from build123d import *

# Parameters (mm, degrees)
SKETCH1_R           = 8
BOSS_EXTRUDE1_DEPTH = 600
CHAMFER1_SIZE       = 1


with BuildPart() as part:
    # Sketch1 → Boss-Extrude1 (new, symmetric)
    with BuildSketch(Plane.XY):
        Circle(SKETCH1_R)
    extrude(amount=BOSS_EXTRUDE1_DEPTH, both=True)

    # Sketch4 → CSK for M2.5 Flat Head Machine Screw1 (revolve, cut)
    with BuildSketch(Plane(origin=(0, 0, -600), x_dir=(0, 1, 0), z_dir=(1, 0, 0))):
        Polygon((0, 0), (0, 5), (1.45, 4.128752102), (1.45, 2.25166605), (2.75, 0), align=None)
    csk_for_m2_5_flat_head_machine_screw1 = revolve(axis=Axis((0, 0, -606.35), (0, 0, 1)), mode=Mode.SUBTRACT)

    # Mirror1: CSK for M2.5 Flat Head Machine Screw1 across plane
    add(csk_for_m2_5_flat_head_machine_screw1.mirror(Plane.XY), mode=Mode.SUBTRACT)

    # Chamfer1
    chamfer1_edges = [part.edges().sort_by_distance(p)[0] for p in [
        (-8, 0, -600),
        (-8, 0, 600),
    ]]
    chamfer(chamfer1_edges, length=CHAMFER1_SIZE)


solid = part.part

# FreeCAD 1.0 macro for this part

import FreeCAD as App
import Part
import Sketcher

V = App.Vector
Q = App.Units.Quantity


def edges_at(feature, points):
    """Names of the edges that pass closest to the given points."""
    edges = feature.Shape.Edges
    near = lambda p: min(range(len(edges)), key=lambda i: edges[i].distToShape(Part.Vertex(*p))[0])
    return sorted({f"Edge{near(p) + 1}" for p in points})

doc = App.newDocument("Part")
body = doc.addObject("PartDesign::Body", "Body")

# Sketch on XY plane
sketch1 = body.newObject("Sketcher::SketchObject", "Sketch")
sketch1.AttachmentSupport = (doc.getObject("XY_Plane"), [""])
sketch1.MapMode = "FlatFace"
sketch1.addGeometry(Part.Circle(V(0, 0, 0), V(0, 0, 1), 8), False)
sketch1.addConstraint([
    Sketcher.Constraint("Coincident", 0, 3, -1, 1),
    Sketcher.Constraint("Diameter", 0, Q("16 mm")),
])
pad1 = body.newObject("PartDesign::Pad", "Pad")
pad1.Profile = sketch1
pad1.Length = 1200
pad1.Midplane = True

# Sketch on YZ plane
sketch2 = body.newObject("Sketcher::SketchObject", "Sketch001")
sketch2.AttachmentSupport = (doc.getObject("YZ_Plane"), [""])
sketch2.MapMode = "FlatFace"
sketch2.addGeometry([
    Part.LineSegment(V(0, -595, 0), V(0, -600, 0)),  # 0
    Part.LineSegment(V(0, -600, 0), V(2.8, -600, 0)),  # 1
    Part.LineSegment(V(2.8, -600, 0), V(1.4, -597.7, 0)),  # 2
    Part.LineSegment(V(1.4, -597.7, 0), V(1.4, -595.9, 0)),  # 3
    Part.LineSegment(V(1.4, -595.9, 0), V(0, -595, 0)),  # 4
], False)
sketch2.addConstraint([
    Sketcher.Constraint("Coincident", 0, 2, 1, 1),
    Sketcher.Constraint("Coincident", 1, 2, 2, 1),
    Sketcher.Constraint("Coincident", 2, 2, 3, 1),
    Sketcher.Constraint("Coincident", 3, 2, 4, 1),
    Sketcher.Constraint("Coincident", 4, 2, 0, 1),
    Sketcher.Constraint("Vertical", 0),
    Sketcher.Constraint("Horizontal", 1),
    Sketcher.Constraint("Vertical", 3),
    Sketcher.Constraint("PointOnObject", 0, 2, -2),
    Sketcher.Constraint("DistanceY", 0, 2, 0, 1, Q("5 mm")),
    Sketcher.Constraint("Angle", 2, Q("120 deg")),
    Sketcher.Constraint("Angle", 4, Q("149 deg")),
    Sketcher.Constraint("DistanceY", 0, 2, -1, 1, Q("600 mm")),
    Sketcher.Constraint("Distance", 2, Q("2.6 mm")),
    Sketcher.Constraint("DistanceX", 1, 1, 1, 2, Q("2.75 mm")),
])
groove = body.newObject("PartDesign::Groove", "Groove")
groove.Profile = sketch2
groove.ReferenceAxis = (sketch2, ["V_Axis"])
groove.Angle = 360
doc.recompute()

mirrored = body.newObject("PartDesign::Mirrored", "Mirrored")
mirrored.Originals = [groove]
mirrored.MirrorPlane = (doc.getObject("XY_Plane"), [""])
body.Tip = mirrored
doc.recompute()

chamfer = body.newObject("PartDesign::Chamfer", "Chamfer")
chamfer.Base = (mirrored, edges_at(mirrored, [(-8, 0, -600), (-8, 0, 600)]))
chamfer.Size = 1

doc.recompute()
